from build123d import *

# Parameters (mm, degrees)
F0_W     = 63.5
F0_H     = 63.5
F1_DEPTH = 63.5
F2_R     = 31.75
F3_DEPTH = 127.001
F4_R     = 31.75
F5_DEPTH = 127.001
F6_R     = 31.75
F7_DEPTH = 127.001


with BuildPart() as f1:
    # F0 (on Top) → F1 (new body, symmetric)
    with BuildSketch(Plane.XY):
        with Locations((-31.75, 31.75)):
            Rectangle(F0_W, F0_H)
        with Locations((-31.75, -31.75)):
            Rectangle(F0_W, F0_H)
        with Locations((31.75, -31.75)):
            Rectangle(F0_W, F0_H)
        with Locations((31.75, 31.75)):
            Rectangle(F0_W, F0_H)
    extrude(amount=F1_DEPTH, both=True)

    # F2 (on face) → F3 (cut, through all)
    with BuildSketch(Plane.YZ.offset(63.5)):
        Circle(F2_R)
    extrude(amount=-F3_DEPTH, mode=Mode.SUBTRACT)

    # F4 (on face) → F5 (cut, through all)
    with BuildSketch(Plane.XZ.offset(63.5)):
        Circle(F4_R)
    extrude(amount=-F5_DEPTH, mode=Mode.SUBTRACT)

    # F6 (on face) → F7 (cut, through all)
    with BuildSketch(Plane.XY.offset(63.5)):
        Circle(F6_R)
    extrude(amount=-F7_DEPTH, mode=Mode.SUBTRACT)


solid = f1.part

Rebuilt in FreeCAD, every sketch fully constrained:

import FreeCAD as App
import Part
import Sketcher
from FreeCAD import Vector
Q = App.Units.Quantity


def add_polygon(sketch, points):
    """Adds a closed chain of lines whose ends are joined by coincident constraints."""
    first, n = sketch.GeometryCount, len(points)
    for a, b in zip(points, points[1:] + points[:1]):
        sketch.addGeometry(Part.LineSegment(App.Vector(*a, 0), App.Vector(*b, 0)), False)
    for i in range(n):
        sketch.addConstraint(Sketcher.Constraint("Coincident", first + i, 2, first + (i + 1) % n, 1))

doc = App.newDocument("Part")
body = doc.addObject("PartDesign::Body", "Body")

# Sketch on XY plane
sketch1 = doc.addObject("Sketcher::SketchObject", "Sketch")
body.addObject(sketch1)
sketch1.AttachmentSupport = (doc.XY_Plane, [""])
sketch1.MapMode = "FlatFace"
add_polygon(sketch1, [(-64, 64), (-64, -64), (64, -64), (64, 64)])  # lines 0-3
sketch1.addConstraint([
    Sketcher.Constraint("Vertical", 0),
    Sketcher.Constraint("Horizontal", 1),
    Sketcher.Constraint("Vertical", 2),
    Sketcher.Constraint("Horizontal", 3),
    Sketcher.Constraint("Symmetric", 0, 2, 2, 2, -1, 1),
    Sketcher.Constraint("Equal", 3, 0),
    Sketcher.Constraint("DistanceX", 1, 1, 1, 2, Q("5 in")),
])
pad1 = doc.addObject("PartDesign::Pad", "Pad")
body.addObject(pad1)
pad1.Profile = sketch1
pad1.Length = Q("5 in")
pad1.Midplane = True

# Sketch on YZ plane
sketch2 = doc.addObject("Sketcher::SketchObject", "Sketch001")
body.addObject(sketch2)
sketch2.AttachmentSupport = (doc.YZ_Plane, [""])
sketch2.MapMode = "FlatFace"
sketch2.AttachmentOffset = App.Placement(Vector(0, 0, 2.5 * 25.4), App.Rotation())
sketch2.addGeometry(Part.Circle(Vector(0, 0, 0), Vector(0, 0, 1), 32), False)
sketch2.addConstraint([
    Sketcher.Constraint("Coincident", 0, 3, -1, 1),
    Sketcher.Constraint("Diameter", 0, Q("2.5 in")),
])
pocket1 = doc.addObject("PartDesign::Pocket", "Pocket")
body.addObject(pocket1)
pocket1.Profile = sketch2
pocket1.Type = "ThroughAll"

# Sketch on XZ plane
sketch3 = doc.addObject("Sketcher::SketchObject", "Sketch002")
body.addObject(sketch3)
sketch3.AttachmentSupport = (doc.XZ_Plane, [""])
sketch3.MapMode = "FlatFace"
sketch3.AttachmentOffset = App.Placement(Vector(0, 0, 2.5 * 25.4), App.Rotation())
sketch3.addGeometry(Part.Circle(Vector(0, 0, 0), Vector(0, 0, 1), 32), False)
sketch3.addConstraint([
    Sketcher.Constraint("Coincident", 0, 3, -1, 1),
    Sketcher.Constraint("Diameter", 0, Q("2.5 in")),
])
pocket2 = doc.addObject("PartDesign::Pocket", "Pocket001")
body.addObject(pocket2)
pocket2.Profile = sketch3
pocket2.Type = "ThroughAll"

# Sketch on XY plane
sketch4 = doc.addObject("Sketcher::SketchObject", "Sketch003")
body.addObject(sketch4)
sketch4.AttachmentSupport = (doc.XY_Plane, [""])
sketch4.MapMode = "FlatFace"
sketch4.AttachmentOffset = App.Placement(Vector(0, 0, 2.5 * 25.4), App.Rotation())
sketch4.addGeometry(Part.Circle(Vector(0, 0, 0), Vector(0, 0, 1), 32), False)
sketch4.addConstraint([
    Sketcher.Constraint("Coincident", 0, 3, -1, 1),
    Sketcher.Constraint("Diameter", 0, Q("2.5 in")),
])
pocket3 = doc.addObject("PartDesign::Pocket", "Pocket002")
body.addObject(pocket3)
pocket3.Profile = sketch4
pocket3.Type = "ThroughAll"

doc.recompute()
